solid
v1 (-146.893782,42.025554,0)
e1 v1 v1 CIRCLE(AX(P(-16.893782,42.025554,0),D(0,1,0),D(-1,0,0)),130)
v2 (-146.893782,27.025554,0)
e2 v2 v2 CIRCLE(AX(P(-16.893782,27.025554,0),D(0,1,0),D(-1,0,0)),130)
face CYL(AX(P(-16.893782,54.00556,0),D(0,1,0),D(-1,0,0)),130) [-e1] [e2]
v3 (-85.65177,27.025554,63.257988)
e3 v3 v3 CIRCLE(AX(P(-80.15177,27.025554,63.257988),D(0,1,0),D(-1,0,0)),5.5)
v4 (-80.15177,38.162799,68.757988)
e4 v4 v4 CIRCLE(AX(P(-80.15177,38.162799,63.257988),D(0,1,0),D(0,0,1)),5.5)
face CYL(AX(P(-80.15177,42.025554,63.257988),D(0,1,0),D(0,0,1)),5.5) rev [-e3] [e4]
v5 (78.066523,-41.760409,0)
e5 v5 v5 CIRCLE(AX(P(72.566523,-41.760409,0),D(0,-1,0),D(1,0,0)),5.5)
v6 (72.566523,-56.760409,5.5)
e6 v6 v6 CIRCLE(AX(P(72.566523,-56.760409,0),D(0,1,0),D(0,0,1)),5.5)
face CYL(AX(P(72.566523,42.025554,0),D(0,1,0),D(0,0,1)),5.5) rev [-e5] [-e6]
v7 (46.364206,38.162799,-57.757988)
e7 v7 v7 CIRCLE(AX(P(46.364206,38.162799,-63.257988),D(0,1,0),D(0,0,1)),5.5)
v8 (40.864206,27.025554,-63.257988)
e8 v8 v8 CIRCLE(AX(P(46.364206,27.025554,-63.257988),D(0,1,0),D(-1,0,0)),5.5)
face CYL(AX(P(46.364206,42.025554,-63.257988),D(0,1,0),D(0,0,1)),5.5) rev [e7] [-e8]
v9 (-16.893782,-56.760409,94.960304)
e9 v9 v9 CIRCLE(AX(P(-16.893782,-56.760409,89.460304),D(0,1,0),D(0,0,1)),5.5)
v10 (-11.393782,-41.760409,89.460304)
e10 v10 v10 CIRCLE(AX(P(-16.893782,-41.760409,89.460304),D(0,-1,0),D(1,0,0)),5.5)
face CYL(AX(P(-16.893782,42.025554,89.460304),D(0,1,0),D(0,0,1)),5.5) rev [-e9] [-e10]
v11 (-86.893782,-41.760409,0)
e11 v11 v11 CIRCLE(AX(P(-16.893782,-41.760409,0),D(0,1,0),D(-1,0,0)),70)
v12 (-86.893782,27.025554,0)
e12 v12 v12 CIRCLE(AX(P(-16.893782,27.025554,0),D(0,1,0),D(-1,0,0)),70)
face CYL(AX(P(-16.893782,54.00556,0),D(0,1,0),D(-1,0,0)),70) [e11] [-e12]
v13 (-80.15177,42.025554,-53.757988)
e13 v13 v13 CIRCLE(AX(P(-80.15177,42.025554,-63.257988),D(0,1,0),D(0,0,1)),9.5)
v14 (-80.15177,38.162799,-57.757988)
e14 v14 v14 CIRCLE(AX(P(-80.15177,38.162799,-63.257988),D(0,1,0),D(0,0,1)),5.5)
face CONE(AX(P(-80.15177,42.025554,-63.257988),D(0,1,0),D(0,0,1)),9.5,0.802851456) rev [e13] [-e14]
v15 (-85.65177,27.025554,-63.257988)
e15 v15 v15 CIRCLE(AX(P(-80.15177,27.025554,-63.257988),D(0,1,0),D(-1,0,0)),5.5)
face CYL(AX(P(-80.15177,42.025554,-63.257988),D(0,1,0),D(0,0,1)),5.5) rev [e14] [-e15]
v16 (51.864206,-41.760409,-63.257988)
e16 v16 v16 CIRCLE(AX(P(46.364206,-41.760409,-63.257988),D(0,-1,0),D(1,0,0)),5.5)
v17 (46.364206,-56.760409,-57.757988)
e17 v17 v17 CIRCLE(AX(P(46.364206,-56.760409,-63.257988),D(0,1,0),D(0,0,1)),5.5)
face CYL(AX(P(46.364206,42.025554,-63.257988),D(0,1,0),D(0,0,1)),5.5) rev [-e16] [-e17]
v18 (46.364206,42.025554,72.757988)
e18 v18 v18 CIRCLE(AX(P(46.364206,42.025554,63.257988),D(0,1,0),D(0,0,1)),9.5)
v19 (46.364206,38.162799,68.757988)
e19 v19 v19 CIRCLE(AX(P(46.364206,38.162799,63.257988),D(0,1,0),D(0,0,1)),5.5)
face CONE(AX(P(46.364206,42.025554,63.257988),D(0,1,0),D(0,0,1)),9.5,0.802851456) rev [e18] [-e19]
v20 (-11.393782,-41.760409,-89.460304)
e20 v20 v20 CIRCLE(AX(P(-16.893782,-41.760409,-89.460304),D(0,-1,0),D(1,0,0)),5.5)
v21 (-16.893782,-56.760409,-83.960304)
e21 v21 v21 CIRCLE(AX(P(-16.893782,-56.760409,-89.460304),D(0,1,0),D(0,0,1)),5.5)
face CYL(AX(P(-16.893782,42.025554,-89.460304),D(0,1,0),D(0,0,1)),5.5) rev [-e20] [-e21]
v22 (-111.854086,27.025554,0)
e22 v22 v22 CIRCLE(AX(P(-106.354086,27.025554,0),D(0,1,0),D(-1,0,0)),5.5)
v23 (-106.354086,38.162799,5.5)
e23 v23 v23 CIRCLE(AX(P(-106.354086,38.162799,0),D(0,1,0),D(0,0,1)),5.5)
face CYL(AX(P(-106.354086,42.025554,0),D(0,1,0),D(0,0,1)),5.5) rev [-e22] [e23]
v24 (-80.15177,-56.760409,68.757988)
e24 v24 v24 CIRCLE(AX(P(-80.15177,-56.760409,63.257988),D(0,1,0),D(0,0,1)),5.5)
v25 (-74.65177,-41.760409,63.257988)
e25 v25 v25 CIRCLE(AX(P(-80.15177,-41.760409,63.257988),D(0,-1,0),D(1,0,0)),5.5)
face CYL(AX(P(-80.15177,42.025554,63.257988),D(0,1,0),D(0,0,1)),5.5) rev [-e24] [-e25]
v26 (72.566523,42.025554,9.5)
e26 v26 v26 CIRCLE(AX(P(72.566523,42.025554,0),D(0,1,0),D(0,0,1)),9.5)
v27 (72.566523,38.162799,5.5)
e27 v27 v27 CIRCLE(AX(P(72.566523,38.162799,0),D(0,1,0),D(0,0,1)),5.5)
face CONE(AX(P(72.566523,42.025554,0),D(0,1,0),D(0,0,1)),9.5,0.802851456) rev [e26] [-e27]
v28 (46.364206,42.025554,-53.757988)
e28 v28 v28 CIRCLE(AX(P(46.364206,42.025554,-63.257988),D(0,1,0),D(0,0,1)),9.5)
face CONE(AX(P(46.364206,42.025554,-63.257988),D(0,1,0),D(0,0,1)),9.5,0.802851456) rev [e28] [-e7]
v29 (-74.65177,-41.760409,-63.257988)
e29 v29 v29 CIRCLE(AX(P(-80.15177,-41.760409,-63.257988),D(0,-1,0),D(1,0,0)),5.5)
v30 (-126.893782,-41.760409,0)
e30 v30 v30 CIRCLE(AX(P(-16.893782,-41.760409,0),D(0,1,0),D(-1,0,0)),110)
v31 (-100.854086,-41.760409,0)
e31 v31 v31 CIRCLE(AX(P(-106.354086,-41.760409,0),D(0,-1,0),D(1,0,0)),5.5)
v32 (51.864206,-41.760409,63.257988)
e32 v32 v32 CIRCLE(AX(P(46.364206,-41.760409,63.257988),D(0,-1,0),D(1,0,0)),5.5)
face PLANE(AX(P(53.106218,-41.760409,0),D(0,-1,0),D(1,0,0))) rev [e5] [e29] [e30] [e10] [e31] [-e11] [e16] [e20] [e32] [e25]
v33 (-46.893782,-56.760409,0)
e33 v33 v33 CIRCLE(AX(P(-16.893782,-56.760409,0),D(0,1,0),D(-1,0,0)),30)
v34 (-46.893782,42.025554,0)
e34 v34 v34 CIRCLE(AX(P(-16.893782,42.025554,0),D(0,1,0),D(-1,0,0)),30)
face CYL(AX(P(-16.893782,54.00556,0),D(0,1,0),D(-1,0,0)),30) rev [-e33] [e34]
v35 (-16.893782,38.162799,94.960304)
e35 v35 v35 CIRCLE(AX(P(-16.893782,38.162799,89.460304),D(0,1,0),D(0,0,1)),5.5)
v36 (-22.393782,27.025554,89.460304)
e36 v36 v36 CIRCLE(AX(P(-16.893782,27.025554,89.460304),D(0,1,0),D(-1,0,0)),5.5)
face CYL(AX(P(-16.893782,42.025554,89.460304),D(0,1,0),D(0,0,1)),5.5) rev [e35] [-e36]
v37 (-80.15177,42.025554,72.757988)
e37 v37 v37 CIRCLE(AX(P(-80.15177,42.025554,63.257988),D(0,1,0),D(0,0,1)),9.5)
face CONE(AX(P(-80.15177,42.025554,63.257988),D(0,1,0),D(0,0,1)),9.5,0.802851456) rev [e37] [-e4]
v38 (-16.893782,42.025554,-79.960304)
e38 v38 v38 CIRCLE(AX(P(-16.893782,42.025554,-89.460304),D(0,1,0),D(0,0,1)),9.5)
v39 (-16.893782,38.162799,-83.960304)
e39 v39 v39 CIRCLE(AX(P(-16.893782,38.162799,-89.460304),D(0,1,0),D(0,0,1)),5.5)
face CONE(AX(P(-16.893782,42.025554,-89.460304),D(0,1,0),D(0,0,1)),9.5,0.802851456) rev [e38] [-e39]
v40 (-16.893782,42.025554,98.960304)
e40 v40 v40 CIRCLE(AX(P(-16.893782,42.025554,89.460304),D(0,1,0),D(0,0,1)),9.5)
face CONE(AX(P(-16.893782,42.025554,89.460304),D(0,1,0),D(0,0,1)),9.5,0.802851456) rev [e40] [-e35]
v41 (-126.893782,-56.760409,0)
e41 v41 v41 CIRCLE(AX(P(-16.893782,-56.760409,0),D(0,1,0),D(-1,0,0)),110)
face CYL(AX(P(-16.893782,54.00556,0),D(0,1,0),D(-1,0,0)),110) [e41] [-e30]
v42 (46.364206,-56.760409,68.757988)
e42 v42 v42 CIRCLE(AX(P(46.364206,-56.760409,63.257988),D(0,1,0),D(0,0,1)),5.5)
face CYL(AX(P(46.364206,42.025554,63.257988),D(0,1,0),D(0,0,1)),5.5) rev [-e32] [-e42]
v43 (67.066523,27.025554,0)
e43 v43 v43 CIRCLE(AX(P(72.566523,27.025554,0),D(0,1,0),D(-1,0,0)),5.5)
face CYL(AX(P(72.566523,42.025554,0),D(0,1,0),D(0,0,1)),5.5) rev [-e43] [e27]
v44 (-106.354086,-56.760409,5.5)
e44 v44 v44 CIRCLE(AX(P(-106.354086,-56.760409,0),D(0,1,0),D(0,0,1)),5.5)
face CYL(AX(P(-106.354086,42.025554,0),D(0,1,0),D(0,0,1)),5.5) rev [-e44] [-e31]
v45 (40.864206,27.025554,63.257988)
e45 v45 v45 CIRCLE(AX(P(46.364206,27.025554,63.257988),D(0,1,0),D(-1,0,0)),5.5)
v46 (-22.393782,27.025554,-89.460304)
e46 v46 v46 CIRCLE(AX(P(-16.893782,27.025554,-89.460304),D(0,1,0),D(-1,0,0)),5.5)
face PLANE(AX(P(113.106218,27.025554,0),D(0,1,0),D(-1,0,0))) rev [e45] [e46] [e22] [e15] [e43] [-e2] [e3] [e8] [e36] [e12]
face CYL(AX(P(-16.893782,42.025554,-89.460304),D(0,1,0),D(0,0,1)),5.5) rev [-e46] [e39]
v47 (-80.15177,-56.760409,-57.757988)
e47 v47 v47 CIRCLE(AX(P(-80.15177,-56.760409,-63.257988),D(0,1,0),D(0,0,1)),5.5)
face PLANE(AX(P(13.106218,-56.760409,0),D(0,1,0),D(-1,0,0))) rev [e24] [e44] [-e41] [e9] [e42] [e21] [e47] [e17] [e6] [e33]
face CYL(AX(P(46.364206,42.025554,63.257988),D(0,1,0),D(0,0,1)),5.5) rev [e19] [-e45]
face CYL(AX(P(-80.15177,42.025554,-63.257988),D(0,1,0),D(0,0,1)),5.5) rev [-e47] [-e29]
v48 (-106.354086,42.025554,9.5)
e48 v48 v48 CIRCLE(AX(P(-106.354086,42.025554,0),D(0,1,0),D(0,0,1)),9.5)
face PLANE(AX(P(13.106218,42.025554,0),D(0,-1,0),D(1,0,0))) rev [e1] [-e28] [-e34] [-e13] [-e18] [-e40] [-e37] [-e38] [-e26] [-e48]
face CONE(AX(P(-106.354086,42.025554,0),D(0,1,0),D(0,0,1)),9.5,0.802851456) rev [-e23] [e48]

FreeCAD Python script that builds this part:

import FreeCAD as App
import Part
import Sketcher

V = App.Vector
Q = App.Units.Quantity

doc = App.newDocument("Part")
body = doc.addObject("PartDesign::Body", "Body")

# Sketch on XY plane
sketch1 = doc.addObject("Sketcher::SketchObject", "Sketch")
body.addObject(sketch1)
sketch1.AttachmentSupport = (doc.XY_Plane, [""])
sketch1.MapMode = "FlatFace"
sketch1.addGeometry([
    Part.LineSegment(V(113, 42, 0), V(13, 42, 0)),  # 0
    Part.LineSegment(V(13, 42, 0), V(13, -57, 0)),  # 1
    Part.LineSegment(V(13, -57, 0), V(93, -57, 0)),  # 2
    Part.LineSegment(V(93, -57, 0), V(93, -42, 0)),  # 3
    Part.LineSegment(V(93, -42, 0), V(53, -42, 0)),  # 4
    Part.LineSegment(V(53, -42, 0), V(53, 27, 0)),  # 5
    Part.LineSegment(V(53, 27, 0), V(113, 27, 0)),  # 6
    Part.LineSegment(V(113, 27, 0), V(113, 42, 0)),  # 7
], False)
sketch1.addGeometry(Part.LineSegment(V(-17, 42, 0), V(-17, -57, 0)), True)  # axis
sketch1.addConstraint([
    Sketcher.Constraint("Coincident", 0, 2, 1, 1),
    Sketcher.Constraint("Coincident", 1, 2, 2, 1),
    Sketcher.Constraint("Coincident", 2, 2, 3, 1),
    Sketcher.Constraint("Coincident", 3, 2, 4, 1),
    Sketcher.Constraint("Coincident", 4, 2, 5, 1),
    Sketcher.Constraint("Coincident", 5, 2, 6, 1),
    Sketcher.Constraint("Coincident", 6, 2, 7, 1),
    Sketcher.Constraint("Coincident", 7, 2, 0, 1),
    Sketcher.Constraint("Horizontal", 0),
    Sketcher.Constraint("Vertical", 1),
    Sketcher.Constraint("Horizontal", 2),
    Sketcher.Constraint("Vertical", 3),
    Sketcher.Constraint("Horizontal", 4),
    Sketcher.Constraint("Vertical", 5),
    Sketcher.Constraint("Horizontal", 6),
    Sketcher.Constraint("Vertical", 7),
    Sketcher.Constraint("Vertical", 8),
    Sketcher.Constraint("Horizontal", 7, 2, 8, 1),
    Sketcher.Constraint("Horizontal", 2, 2, 8, 2),
    Sketcher.Constraint("Equal", 3, 7),
    Sketcher.Constraint("DistanceX", 0, 2, 0, 1, Q("100 mm")),
    Sketcher.Constraint("DistanceX", 2, 1, 2, 2, Q("80 mm")),
    Sketcher.Constraint("DistanceX", 4, 2, 4, 1, Q("40 mm")),
    Sketcher.Constraint("DistanceY", 3, 1, 3, 2, Q("15 mm")),
    Sketcher.Constraint("DistanceX", 8, 1, 0, 2, Q("30 mm")),
    Sketcher.Constraint("DistanceY", 1, 2, 1, 1, Q("98.785963 mm")),
    Sketcher.Constraint("DistanceX", -1, 1, 0, 2, Q("13.106218 mm")),
    Sketcher.Constraint("DistanceY", 1, 2, -1, 1, Q("56.760409 mm")),
])
revolution = doc.addObject("PartDesign::Revolution", "Revolution")
body.addObject(revolution)
revolution.Profile = sketch1
revolution.ReferenceAxis = (sketch1, ["Axis0"])
revolution.Angle = 360

# Sketch on XZ plane
sketch2 = doc.addObject("Sketcher::SketchObject", "Sketch001")
body.addObject(sketch2)
sketch2.AttachmentSupport = (doc.XZ_Plane, [""])
sketch2.MapMode = "FlatFace"
sketch2.AttachmentOffset = App.Placement(V(0, 0, -42.025554), App.Rotation())
sketch2.addGeometry(Part.Circle(V(73, 0, 0), V(0, 0, 1), 6), False)
sketch2.addConstraint([
    Sketcher.Constraint("PointOnObject", 0, 3, -1),
    Sketcher.Constraint("Diameter", 0, Q("11 mm")),
    Sketcher.Constraint("DistanceX", -1, 1, 0, 3, Q("72.566523 mm")),
])
doc.recompute()
hole = doc.addObject("PartDesign::Hole", "Hole")
body.addObject(hole)
hole.Profile = sketch2
hole.ThreadType = "None"
hole.Diameter = 11
hole.DepthType = "ThroughAll"
hole.HoleCutType = "Countersink"
hole.HoleCutDiameter = 19
hole.HoleCutCountersinkAngle = 92
hole.Reversed = True
doc.recompute()

datumline = doc.addObject("PartDesign::Line", "DatumLine")
body.addObject(datumline)
datumline.Placement = App.Placement(V(-16.893782, 0, 0), App.Rotation(V(0, 0, 1), V(0, 1, 0)))
polarpattern = doc.addObject("PartDesign::PolarPattern", "PolarPattern")
body.addObject(polarpattern)
polarpattern.Originals = [hole]
polarpattern.Axis = (datumline, [""])
polarpattern.Angle = 360
polarpattern.Occurrences = 8
body.Tip = polarpattern

doc.recompute()
